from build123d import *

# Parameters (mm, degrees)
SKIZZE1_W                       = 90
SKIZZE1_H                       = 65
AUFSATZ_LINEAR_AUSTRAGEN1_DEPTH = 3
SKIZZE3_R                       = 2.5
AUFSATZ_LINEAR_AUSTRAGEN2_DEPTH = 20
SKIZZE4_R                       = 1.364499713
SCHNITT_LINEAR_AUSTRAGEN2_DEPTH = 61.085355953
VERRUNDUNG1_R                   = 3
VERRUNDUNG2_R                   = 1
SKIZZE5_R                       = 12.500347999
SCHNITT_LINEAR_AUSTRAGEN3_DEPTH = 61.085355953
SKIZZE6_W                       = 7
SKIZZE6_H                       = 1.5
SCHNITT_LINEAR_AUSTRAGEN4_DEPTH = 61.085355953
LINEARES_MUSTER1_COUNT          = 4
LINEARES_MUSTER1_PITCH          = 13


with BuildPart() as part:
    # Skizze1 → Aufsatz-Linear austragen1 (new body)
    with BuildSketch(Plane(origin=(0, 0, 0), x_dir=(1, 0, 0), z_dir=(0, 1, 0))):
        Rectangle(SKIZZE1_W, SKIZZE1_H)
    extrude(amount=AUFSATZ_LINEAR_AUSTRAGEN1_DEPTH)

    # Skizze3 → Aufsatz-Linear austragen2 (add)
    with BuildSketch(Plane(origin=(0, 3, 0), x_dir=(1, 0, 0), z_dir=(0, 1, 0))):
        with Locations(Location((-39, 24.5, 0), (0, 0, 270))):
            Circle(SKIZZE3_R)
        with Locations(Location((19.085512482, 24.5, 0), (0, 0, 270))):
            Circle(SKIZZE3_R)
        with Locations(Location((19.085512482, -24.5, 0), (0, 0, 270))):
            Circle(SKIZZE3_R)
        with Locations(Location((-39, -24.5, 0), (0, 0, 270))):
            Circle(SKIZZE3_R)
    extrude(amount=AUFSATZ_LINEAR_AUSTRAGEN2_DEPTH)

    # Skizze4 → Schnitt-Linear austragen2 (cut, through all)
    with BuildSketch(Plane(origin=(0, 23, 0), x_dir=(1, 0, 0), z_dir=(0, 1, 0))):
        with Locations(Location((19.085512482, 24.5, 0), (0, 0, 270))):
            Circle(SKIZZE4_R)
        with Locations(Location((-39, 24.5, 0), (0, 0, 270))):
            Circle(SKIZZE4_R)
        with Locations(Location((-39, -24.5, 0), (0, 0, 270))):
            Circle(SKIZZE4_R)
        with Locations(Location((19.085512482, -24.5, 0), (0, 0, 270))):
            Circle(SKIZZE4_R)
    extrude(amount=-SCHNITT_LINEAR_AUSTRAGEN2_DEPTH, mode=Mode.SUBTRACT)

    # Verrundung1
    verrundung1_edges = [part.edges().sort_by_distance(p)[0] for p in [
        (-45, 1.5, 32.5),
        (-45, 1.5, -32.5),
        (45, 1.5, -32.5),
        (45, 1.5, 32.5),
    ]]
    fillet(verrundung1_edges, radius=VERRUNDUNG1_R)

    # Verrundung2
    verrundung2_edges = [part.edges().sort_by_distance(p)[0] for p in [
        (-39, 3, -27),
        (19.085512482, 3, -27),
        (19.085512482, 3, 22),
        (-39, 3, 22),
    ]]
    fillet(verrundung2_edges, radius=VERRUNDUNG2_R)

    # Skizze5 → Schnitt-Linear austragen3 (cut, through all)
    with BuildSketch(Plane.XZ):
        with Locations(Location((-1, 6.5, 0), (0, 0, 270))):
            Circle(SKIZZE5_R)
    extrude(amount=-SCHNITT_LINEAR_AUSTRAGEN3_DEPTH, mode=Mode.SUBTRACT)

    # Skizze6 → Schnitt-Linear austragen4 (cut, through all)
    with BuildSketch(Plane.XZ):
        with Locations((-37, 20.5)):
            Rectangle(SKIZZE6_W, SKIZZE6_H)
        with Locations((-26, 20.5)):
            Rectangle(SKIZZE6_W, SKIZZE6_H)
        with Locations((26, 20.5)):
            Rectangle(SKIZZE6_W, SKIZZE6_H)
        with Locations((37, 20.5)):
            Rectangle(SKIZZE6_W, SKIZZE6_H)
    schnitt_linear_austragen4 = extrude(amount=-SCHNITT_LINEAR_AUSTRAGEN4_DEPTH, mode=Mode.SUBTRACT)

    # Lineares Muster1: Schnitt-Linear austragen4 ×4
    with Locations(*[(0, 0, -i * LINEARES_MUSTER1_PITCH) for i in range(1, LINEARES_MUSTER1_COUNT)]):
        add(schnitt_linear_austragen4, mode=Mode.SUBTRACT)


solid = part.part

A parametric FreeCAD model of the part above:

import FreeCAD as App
import Part
import Sketcher

V = App.Vector


def edges_at(feature, points):
    """Names of the edges that pass closest to the given points."""
    edges = feature.Shape.Edges
    near = lambda p: min(range(len(edges)), key=lambda i: edges[i].distToShape(Part.Vertex(*p))[0])
    return sorted({f"Edge{near(p) + 1}" for p in points})

doc = App.newDocument("Part")
body = doc.addObject("PartDesign::Body", "Body")

sketch1 = body.newObject("Sketcher::SketchObject", "Sketch")
sketch1.AttachmentSupport = (doc.getObject("XZ_Plane"), [""])
sketch1.MapMode = "FlatFace"
sketch1.addGeometry([
    Part.LineSegment(V(-45, -32.5, 0), V(-45, 32.5, 0)),
    Part.LineSegment(V(-45, 32.5, 0), V(45, 32.5, 0)),
    Part.LineSegment(V(45, 32.5, 0), V(45, -32.5, 0)),
    Part.LineSegment(V(45, -32.5, 0), V(-45, -32.5, 0)),
], False)
sketch1.addConstraint([
    Sketcher.Constraint("Coincident", 0, 2, 1, 1),
    Sketcher.Constraint("Coincident", 1, 2, 2, 1),
    Sketcher.Constraint("Coincident", 2, 2, 3, 1),
    Sketcher.Constraint("Coincident", 3, 2, 0, 1),
    Sketcher.Constraint("Vertical", 0),
    Sketcher.Constraint("Horizontal", 1),
    Sketcher.Constraint("Vertical", 2),
    Sketcher.Constraint("Horizontal", 3),
    Sketcher.Constraint("Symmetric", 0, 2, 2, 2, -1, 1),
    Sketcher.Constraint("DistanceX", 1, 1, 1, 2, 90.0),
    Sketcher.Constraint("DistanceY", 0, 1, 0, 2, 65.0),
])
pad1 = body.newObject("PartDesign::Pad", "Pad")
pad1.Profile = sketch1
pad1.Length = 3
pad1.Reversed = True

sketch2 = body.newObject("Sketcher::SketchObject", "Sketch001")
sketch2.AttachmentSupport = (doc.getObject("XZ_Plane"), [""])
sketch2.MapMode = "FlatFace"
sketch2.AttachmentOffset = App.Placement(V(0, 0, -3), App.Rotation())
sketch2.addGeometry([
    Part.Circle(V(-39, -24.5, 0), V(0, 0, 1), 2.5),
    Part.Circle(V(19.085512, -24.5, 0), V(0, 0, 1), 2.5),
    Part.Circle(V(19.085512, 24.5, 0), V(0, 0, 1), 2.5),
    Part.Circle(V(-39, 24.5, 0), V(0, 0, 1), 2.5),
], False)
sketch2.addConstraint([
    Sketcher.Constraint("Equal", 0, 1),
    Sketcher.Constraint("Equal", 1, 2),
    Sketcher.Constraint("Equal", 2, 3),
    Sketcher.Constraint("Symmetric", 1, 3, 2, 3, -1),
    Sketcher.Constraint("Symmetric", 0, 3, 3, 3, -1),
    Sketcher.Constraint("Horizontal", 0, 3, 1, 3),
    Sketcher.Constraint("Diameter", 0, 5.0),
    Sketcher.Constraint("DistanceX", 0, 3, -1, 1, 39.0),
    Sketcher.Constraint("DistanceY", 1, 3, 2, 3, 49.0),
    Sketcher.Constraint("DistanceX", -1, 1, 1, 3, 19.085512),
])
pad2 = body.newObject("PartDesign::Pad", "Pad001")
pad2.Profile = sketch2
pad2.Length = 20
pad2.Reversed = True

sketch3 = body.newObject("Sketcher::SketchObject", "Sketch002")
sketch3.AttachmentSupport = (doc.getObject("XZ_Plane"), [""])
sketch3.MapMode = "FlatFace"
sketch3.AttachmentOffset = App.Placement(V(0, 0, -23), App.Rotation())
sketch3.addGeometry([
    Part.Circle(V(19.085512, -24.5, 0), V(0, 0, 1), 1.3645),
    Part.Circle(V(-39, -24.5, 0), V(0, 0, 1), 1.3645),
    Part.Circle(V(-39, 24.5, 0), V(0, 0, 1), 1.3645),
    Part.Circle(V(19.085512, 24.5, 0), V(0, 0, 1), 1.3645),
], False)
sketch3.addConstraint([
    Sketcher.Constraint("Equal", 0, 1),
    Sketcher.Constraint("Equal", 1, 2),
    Sketcher.Constraint("Equal", 2, 3),
    Sketcher.Constraint("Symmetric", 1, 3, 2, 3, -1),
    Sketcher.Constraint("Symmetric", 0, 3, 3, 3, -1),
    Sketcher.Constraint("Horizontal", 0, 3, 1, 3),
    Sketcher.Constraint("Diameter", 0, 2.728999),
    Sketcher.Constraint("DistanceX", 1, 3, -1, 1, 39.0),
    Sketcher.Constraint("DistanceY", 1, 3, 2, 3, 49.0),
    Sketcher.Constraint("DistanceX", -1, 1, 0, 3, 19.085512),
])
pocket1 = body.newObject("PartDesign::Pocket", "Pocket")
pocket1.Profile = sketch3
pocket1.Type = "ThroughAll"
pocket1.Reversed = True
doc.recompute()

fillet = body.newObject("PartDesign::Fillet", "Fillet")
fillet.Base = (pocket1, edges_at(pocket1, [
    (-45, 1.5, 32.5),
    (-45, 1.5, -32.5),
    (45, 1.5, -32.5),
    (45, 1.5, 32.5),
]))
fillet.Radius = 3
doc.recompute()

fillet2 = body.newObject("PartDesign::Fillet", "Fillet001")
fillet2.Base = (fillet, edges_at(fillet, [
    (-39, 3, -27),
    (19.086, 3, -27),
    (19.086, 3, 22),
    (-39, 3, 22),
]))
fillet2.Radius = 1

sketch4 = body.newObject("Sketcher::SketchObject", "Sketch003")
sketch4.AttachmentSupport = (doc.getObject("XZ_Plane"), [""])
sketch4.MapMode = "FlatFace"
sketch4.addGeometry(Part.Circle(V(-1, 6.5, 0), V(0, 0, 1), 12.500348), False)
sketch4.addConstraint([
    Sketcher.Constraint("DistanceX", 0, 3, -1, 1, 1.0),
    Sketcher.Constraint("DistanceY", -1, 1, 0, 3, 6.5),
    Sketcher.Constraint("Diameter", 0, 25.000696),
])
pocket2 = body.newObject("PartDesign::Pocket", "Pocket001")
pocket2.Profile = sketch4
pocket2.Type = "ThroughAll"

sketch5 = body.newObject("Sketcher::SketchObject", "Sketch004")
sketch5.AttachmentSupport = (doc.getObject("XZ_Plane"), [""])
sketch5.MapMode = "FlatFace"
sketch5.addGeometry([
    Part.LineSegment(V(-40.5, 21.25, 0), V(-40.5, 19.75, 0)),
    Part.LineSegment(V(-40.5, 19.75, 0), V(-33.5, 19.75, 0)),
    Part.LineSegment(V(-33.5, 19.75, 0), V(-33.5, 21.25, 0)),
    Part.LineSegment(V(-33.5, 21.25, 0), V(-40.5, 21.25, 0)),
    Part.LineSegment(V(-29.5, 21.25, 0), V(-29.5, 19.75, 0)),
    Part.LineSegment(V(-29.5, 19.75, 0), V(-22.5, 19.75, 0)),
    Part.LineSegment(V(-22.5, 19.75, 0), V(-22.5, 21.25, 0)),
    Part.LineSegment(V(-22.5, 21.25, 0), V(-29.5, 21.25, 0)),
    Part.LineSegment(V(22.5, 21.25, 0), V(22.5, 19.75, 0)),
    Part.LineSegment(V(22.5, 19.75, 0), V(29.5, 19.75, 0)),
    Part.LineSegment(V(29.5, 19.75, 0), V(29.5, 21.25, 0)),
    Part.LineSegment(V(29.5, 21.25, 0), V(22.5, 21.25, 0)),
    Part.LineSegment(V(33.5, 21.25, 0), V(33.5, 19.75, 0)),
    Part.LineSegment(V(33.5, 19.75, 0), V(40.5, 19.75, 0)),
    Part.LineSegment(V(40.5, 19.75, 0), V(40.5, 21.25, 0)),
    Part.LineSegment(V(40.5, 21.25, 0), V(33.5, 21.25, 0)),
], False)
sketch5.addConstraint([
    Sketcher.Constraint("Coincident", 0, 2, 1, 1),
    Sketcher.Constraint("Coincident", 1, 2, 2, 1),
    Sketcher.Constraint("Coincident", 2, 2, 3, 1),
    Sketcher.Constraint("Coincident", 3, 2, 0, 1),
    Sketcher.Constraint("Coincident", 4, 2, 5, 1),
    Sketcher.Constraint("Coincident", 5, 2, 6, 1),
    Sketcher.Constraint("Coincident", 6, 2, 7, 1),
    Sketcher.Constraint("Coincident", 7, 2, 4, 1),
    Sketcher.Constraint("Coincident", 8, 2, 9, 1),
    Sketcher.Constraint("Coincident", 9, 2, 10, 1),
    Sketcher.Constraint("Coincident", 10, 2, 11, 1),
    Sketcher.Constraint("Coincident", 11, 2, 8, 1),
    Sketcher.Constraint("Coincident", 12, 2, 13, 1),
    Sketcher.Constraint("Coincident", 13, 2, 14, 1),
    Sketcher.Constraint("Coincident", 14, 2, 15, 1),
    Sketcher.Constraint("Coincident", 15, 2, 12, 1),
    Sketcher.Constraint("Vertical", 0),
    Sketcher.Constraint("Horizontal", 1),
    Sketcher.Constraint("Vertical", 2),
    Sketcher.Constraint("Horizontal", 3),
    Sketcher.Constraint("Vertical", 4),
    Sketcher.Constraint("Horizontal", 5),
    Sketcher.Constraint("Vertical", 6),
    Sketcher.Constraint("Horizontal", 7),
    Sketcher.Constraint("Vertical", 8),
    Sketcher.Constraint("Horizontal", 9),
    Sketcher.Constraint("Vertical", 10),
    Sketcher.Constraint("Horizontal", 11),
    Sketcher.Constraint("Vertical", 12),
    Sketcher.Constraint("Horizontal", 13),
    Sketcher.Constraint("Vertical", 14),
    Sketcher.Constraint("Horizontal", 15),
    Sketcher.Constraint("Symmetric", 5, 2, 8, 2, -2),
    Sketcher.Constraint("Symmetric", 7, 2, 10, 2, -2),
    Sketcher.Constraint("Symmetric", 1, 2, 12, 2, -2),
    Sketcher.Constraint("Symmetric", 3, 2, 14, 2, -2),
    Sketcher.Constraint("Horizontal", 1, 2, 4, 2),
    Sketcher.Constraint("Horizontal", 3, 2, 6, 2),
    Sketcher.Constraint("Equal", 3, 5),
    Sketcher.Constraint("DistanceX", 1, 1, 1, 2, 7.0),
    Sketcher.Constraint("DistanceY", 0, 2, 0, 1, 1.5),
    Sketcher.Constraint("DistanceX", 1, 2, 4, 2, 4.0),
    Sketcher.Constraint("DistanceX", 5, 2, 8, 2, 45.0),
    Sketcher.Constraint("DistanceY", -1, 1, 0, 2, 19.75),
])
pocket3 = body.newObject("PartDesign::Pocket", "Pocket002")
pocket3.Profile = sketch5
pocket3.Type = "ThroughAll"
doc.recompute()

linearpattern = body.newObject("PartDesign::LinearPattern", "LinearPattern")
linearpattern.Originals = [pocket3]
linearpattern.Direction = (doc.getObject("Z_Axis"), [""])
linearpattern.Mode = "offset"
linearpattern.Offset = 13
linearpattern.Occurrences = 4
linearpattern.Reversed = True
body.Tip = linearpattern

doc.recompute()
